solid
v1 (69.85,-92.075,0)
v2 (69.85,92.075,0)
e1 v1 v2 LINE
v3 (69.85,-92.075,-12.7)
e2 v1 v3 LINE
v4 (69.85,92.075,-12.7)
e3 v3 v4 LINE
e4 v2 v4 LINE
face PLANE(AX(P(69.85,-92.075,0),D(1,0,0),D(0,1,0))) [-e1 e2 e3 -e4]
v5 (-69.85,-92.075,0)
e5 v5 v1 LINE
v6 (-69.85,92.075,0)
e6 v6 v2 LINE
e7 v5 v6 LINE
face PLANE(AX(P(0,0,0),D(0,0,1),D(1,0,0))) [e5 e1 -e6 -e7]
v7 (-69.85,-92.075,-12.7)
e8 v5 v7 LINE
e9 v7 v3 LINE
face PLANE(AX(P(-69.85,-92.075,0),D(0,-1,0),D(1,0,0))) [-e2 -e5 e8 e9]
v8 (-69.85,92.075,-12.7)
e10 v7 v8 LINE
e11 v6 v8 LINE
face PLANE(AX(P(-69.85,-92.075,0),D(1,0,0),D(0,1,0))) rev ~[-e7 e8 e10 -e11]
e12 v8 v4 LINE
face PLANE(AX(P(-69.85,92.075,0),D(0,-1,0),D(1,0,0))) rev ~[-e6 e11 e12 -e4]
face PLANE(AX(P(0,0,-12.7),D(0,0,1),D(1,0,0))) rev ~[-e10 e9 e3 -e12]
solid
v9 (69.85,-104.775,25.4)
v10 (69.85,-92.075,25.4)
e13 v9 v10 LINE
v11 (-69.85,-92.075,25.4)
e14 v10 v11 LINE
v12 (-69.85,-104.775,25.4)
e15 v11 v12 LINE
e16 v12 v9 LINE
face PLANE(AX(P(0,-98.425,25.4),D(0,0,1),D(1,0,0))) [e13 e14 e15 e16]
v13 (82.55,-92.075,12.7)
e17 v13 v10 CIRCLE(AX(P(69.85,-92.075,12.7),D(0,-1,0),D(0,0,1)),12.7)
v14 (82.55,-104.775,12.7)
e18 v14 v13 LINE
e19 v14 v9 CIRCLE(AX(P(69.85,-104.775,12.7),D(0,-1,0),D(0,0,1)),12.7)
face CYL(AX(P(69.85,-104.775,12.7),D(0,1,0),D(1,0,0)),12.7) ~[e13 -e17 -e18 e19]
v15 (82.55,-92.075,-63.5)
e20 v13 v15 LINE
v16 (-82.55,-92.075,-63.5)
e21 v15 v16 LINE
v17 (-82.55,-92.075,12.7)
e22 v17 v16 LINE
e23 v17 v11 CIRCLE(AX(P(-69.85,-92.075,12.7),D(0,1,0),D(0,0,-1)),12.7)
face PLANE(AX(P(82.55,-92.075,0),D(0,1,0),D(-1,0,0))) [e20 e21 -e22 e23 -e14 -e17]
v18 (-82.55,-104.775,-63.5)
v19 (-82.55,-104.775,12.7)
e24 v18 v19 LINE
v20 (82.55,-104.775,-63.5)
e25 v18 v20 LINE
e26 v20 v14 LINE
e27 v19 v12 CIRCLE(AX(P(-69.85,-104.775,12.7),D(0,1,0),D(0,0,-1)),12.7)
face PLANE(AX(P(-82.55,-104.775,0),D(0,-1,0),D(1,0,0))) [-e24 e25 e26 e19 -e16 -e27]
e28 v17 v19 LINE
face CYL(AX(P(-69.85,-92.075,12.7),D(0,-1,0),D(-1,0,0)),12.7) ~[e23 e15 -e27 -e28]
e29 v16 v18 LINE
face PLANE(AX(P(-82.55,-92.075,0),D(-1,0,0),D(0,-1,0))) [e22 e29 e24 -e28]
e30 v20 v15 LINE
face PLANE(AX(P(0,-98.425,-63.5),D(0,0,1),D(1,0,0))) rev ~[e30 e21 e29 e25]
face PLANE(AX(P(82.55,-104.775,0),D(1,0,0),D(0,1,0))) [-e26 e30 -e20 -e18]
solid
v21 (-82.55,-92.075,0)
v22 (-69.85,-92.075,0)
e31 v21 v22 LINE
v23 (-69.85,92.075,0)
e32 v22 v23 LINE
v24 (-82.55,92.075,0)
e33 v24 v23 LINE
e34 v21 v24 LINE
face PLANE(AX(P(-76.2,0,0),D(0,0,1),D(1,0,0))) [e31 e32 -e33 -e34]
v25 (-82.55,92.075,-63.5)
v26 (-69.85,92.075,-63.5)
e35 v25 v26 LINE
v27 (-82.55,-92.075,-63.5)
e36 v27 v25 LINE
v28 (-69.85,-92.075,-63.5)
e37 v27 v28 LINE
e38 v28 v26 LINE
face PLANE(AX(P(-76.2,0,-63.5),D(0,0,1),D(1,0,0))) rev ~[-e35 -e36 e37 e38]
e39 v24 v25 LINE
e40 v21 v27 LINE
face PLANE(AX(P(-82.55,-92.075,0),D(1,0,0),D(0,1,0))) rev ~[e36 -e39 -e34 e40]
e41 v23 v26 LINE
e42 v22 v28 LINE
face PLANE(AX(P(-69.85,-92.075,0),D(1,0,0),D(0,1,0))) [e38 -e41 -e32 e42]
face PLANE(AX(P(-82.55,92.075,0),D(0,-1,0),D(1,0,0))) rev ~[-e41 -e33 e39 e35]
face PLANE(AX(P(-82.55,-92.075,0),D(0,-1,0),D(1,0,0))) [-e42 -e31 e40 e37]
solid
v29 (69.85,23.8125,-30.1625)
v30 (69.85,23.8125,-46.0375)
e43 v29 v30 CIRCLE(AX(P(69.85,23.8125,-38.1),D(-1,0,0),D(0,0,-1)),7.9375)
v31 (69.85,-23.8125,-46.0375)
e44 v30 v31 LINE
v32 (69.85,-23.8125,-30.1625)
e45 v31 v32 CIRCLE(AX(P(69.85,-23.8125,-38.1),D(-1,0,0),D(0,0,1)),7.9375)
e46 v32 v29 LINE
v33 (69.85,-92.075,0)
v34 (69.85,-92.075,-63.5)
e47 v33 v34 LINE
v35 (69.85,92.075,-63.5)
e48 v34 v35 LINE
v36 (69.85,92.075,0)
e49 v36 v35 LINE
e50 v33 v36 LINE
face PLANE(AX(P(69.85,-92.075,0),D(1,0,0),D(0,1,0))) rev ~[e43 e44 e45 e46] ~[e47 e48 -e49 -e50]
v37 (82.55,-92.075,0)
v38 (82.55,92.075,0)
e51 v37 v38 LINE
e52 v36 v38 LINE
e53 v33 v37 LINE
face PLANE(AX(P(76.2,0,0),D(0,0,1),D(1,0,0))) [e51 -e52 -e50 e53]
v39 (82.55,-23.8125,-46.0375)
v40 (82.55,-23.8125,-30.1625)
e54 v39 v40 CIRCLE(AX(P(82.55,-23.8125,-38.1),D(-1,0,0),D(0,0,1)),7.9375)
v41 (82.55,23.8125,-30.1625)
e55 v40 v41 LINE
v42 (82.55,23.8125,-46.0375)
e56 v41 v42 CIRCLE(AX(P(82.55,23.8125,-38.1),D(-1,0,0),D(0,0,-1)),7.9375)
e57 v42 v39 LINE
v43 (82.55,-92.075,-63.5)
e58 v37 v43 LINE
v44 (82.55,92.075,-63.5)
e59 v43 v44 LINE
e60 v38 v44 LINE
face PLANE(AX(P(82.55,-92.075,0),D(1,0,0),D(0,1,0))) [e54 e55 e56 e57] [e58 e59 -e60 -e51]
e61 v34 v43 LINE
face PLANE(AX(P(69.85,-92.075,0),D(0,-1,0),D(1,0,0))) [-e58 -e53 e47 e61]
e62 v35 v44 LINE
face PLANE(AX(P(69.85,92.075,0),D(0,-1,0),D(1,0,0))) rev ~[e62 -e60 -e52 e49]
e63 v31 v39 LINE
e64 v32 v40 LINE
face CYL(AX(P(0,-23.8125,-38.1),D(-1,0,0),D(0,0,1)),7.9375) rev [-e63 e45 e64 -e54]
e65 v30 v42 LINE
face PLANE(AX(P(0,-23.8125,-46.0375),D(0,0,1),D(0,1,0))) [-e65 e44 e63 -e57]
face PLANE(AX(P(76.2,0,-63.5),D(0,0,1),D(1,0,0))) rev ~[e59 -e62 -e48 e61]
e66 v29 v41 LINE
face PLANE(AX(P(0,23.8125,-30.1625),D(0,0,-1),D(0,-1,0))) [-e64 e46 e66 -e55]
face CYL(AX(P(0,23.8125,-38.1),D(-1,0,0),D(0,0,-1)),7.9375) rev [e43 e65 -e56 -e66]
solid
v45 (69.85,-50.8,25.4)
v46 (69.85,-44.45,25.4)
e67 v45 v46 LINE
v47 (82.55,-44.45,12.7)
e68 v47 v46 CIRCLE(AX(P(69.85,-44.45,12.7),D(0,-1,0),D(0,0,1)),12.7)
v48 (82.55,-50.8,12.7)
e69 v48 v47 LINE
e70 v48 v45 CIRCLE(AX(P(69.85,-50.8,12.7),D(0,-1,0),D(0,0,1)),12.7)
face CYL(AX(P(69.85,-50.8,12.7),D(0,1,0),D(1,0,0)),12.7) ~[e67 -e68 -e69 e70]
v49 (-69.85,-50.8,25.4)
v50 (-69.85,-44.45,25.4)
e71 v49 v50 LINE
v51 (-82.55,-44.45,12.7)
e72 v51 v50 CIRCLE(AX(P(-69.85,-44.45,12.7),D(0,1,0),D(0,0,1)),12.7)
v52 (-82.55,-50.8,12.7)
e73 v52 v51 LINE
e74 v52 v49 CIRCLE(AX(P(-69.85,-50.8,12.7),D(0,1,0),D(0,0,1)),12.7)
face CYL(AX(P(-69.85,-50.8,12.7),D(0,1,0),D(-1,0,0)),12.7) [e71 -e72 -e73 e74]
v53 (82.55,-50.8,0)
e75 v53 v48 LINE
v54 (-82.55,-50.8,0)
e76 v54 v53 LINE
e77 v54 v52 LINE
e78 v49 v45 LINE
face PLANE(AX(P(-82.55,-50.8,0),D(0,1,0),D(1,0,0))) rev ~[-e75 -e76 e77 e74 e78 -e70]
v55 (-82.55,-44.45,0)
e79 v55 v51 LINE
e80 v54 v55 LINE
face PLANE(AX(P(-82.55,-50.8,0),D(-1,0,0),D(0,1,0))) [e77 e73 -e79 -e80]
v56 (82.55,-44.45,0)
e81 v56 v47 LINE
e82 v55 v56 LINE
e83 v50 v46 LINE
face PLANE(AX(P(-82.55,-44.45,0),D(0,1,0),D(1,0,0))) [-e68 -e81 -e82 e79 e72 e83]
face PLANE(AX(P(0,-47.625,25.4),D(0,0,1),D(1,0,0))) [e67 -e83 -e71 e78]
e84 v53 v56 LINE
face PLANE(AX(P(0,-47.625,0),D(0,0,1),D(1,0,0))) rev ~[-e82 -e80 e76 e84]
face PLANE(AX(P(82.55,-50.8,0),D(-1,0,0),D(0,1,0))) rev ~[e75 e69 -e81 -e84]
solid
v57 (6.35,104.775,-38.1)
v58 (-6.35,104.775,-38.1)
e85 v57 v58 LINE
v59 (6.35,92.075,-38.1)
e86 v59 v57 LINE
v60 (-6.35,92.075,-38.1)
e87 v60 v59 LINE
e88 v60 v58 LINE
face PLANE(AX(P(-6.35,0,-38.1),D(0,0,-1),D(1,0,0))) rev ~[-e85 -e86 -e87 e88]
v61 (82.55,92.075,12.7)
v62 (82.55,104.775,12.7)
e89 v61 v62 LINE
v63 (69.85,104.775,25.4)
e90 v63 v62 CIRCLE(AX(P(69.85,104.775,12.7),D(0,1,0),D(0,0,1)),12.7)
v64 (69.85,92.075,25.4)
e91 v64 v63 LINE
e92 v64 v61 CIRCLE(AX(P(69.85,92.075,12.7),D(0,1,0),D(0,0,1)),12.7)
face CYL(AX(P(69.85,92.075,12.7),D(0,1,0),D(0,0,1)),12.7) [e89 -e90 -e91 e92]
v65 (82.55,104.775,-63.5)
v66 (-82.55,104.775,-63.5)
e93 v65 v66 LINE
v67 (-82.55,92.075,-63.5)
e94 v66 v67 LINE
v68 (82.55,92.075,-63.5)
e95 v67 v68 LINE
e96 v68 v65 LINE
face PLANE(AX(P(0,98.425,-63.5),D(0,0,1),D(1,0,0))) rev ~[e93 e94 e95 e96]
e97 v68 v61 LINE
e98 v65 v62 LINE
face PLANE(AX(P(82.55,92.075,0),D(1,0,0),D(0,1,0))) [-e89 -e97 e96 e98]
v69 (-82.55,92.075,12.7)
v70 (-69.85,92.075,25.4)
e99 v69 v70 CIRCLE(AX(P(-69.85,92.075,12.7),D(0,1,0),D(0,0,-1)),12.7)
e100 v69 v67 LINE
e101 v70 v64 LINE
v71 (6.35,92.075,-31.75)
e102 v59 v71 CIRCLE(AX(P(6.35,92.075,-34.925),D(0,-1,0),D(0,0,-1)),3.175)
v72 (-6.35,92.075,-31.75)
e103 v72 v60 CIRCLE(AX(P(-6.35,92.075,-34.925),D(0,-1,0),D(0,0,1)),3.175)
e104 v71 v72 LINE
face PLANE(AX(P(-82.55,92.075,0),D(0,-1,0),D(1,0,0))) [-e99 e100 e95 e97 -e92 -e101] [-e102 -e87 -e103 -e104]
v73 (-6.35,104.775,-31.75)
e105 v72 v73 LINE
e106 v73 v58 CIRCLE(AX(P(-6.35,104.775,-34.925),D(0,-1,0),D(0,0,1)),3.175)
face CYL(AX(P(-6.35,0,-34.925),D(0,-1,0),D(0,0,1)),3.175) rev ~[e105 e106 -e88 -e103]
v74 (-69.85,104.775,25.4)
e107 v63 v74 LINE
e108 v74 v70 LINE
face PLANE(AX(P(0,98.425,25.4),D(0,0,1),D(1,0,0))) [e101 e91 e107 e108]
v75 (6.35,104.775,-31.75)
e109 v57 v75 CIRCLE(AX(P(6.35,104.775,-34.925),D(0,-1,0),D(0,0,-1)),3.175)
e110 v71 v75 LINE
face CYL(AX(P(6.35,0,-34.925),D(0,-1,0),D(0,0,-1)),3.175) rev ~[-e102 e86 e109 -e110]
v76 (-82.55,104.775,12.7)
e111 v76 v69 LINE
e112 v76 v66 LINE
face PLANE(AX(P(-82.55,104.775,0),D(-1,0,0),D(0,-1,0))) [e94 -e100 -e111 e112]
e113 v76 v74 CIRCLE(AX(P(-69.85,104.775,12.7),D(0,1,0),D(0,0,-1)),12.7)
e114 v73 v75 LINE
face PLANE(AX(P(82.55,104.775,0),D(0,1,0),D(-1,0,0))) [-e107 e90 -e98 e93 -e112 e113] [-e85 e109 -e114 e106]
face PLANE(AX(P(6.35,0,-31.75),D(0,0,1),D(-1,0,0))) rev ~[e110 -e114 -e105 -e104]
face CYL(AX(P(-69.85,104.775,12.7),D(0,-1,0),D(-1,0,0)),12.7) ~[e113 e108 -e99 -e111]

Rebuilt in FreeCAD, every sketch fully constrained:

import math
import FreeCAD as App
import Part
import Sketcher
Q = App.Units.Quantity


def edges_at(feature, points):
    """Names of the edges that pass closest to the given points."""
    edges = feature.Shape.Edges
    near = lambda p: min(range(len(edges)), key=lambda i: edges[i].distToShape(Part.Vertex(*p))[0])
    return sorted({f"Edge{near(p) + 1}" for p in points})


def add_polygon(sketch, points):
    """Adds a closed chain of lines whose ends are joined by coincident constraints."""
    first, n = sketch.GeometryCount, len(points)
    for a, b in zip(points, points[1:] + points[:1]):
        sketch.addGeometry(Part.LineSegment(App.Vector(*a, 0), App.Vector(*b, 0)), False)
    for i in range(n):
        sketch.addConstraint(Sketcher.Constraint("Coincident", first + i, 2, first + (i + 1) % n, 1))

doc = App.newDocument("Part")
body = doc.addObject("PartDesign::Body", "Body")
body.AllowCompound = True

# Sketch on XY plane
sketch1 = doc.addObject("Sketcher::SketchObject", "Sketch")
body.addObject(sketch1)
sketch1.AttachmentSupport = (doc.XY_Plane, [""])
sketch1.MapMode = "FlatFace"
add_polygon(sketch1, [(70, 92), (70, -92), (83, -92), (83, 92)])  # lines 0-3
add_polygon(sketch1, [(-83, 92), (-83, -92), (-70, -92), (-70, 92)])  # lines 4-7
sketch1.addConstraint([
    Sketcher.Constraint("Vertical", 0),
    Sketcher.Constraint("Horizontal", 1),
    Sketcher.Constraint("Vertical", 2),
    Sketcher.Constraint("Horizontal", 3),
    Sketcher.Constraint("Vertical", 4),
    Sketcher.Constraint("Horizontal", 5),
    Sketcher.Constraint("Vertical", 6),
    Sketcher.Constraint("Horizontal", 7),
    Sketcher.Constraint("Symmetric", 2, 2, 4, 2, -1, 1),
    Sketcher.Constraint("Symmetric", 0, 2, 6, 2, -1, 1),
    Sketcher.Constraint("Horizontal", 1, 2, 4, 2),
    Sketcher.Constraint("DistanceX", 1, 1, 1, 2, Q("0.5 in")),
    Sketcher.Constraint("DistanceX", 4, 2, 0, 2, Q("6 in")),
    Sketcher.Constraint("DistanceY", 0, 2, 0, 1, Q("7.25 in")),
])
pad1 = doc.addObject("PartDesign::Pad", "Pad")
body.addObject(pad1)
pad1.Profile = sketch1
pad1.Length = Q("2.5 in")
pad1.Reversed = True

# Sketch on YZ plane
sketch2 = doc.addObject("Sketcher::SketchObject", "Sketch001")
body.addObject(sketch2)
sketch2.AttachmentSupport = (doc.YZ_Plane, [""])
sketch2.MapMode = "FlatFace"
sketch2.addGeometry([
    Part.ArcOfCircle(Part.Circle(App.Vector(-24, -38, 0), App.Vector(0, 0, 1), 8), math.radians(90), math.radians(270)),
    Part.LineSegment(App.Vector(-24, -46, 0), App.Vector(24, -46, 0)),
    Part.ArcOfCircle(Part.Circle(App.Vector(24, -38, 0), App.Vector(0, 0, 1), 8), math.radians(-90), math.radians(90)),
    Part.LineSegment(App.Vector(24, -30, 0), App.Vector(-24, -30, 0)),
], False)
sketch2.addConstraint([
    Sketcher.Constraint("Tangent", 0, 2, 1, 1),
    Sketcher.Constraint("Tangent", 1, 2, 2, 1),
    Sketcher.Constraint("Tangent", 2, 2, 3, 1),
    Sketcher.Constraint("Tangent", 3, 2, 0, 1),
    Sketcher.Constraint("Horizontal", 1),
    Sketcher.Constraint("Horizontal", 3),
    Sketcher.Constraint("Radius", 0, Q("0.3125 in")),
    Sketcher.Constraint("DistanceY", 0, 3, -1, 1, Q("1.5 in")),
    Sketcher.Constraint("DistanceX", 1, 1, 1, 2, Q("1.875 in")),
    Sketcher.Constraint("DistanceX", 0, 3, -1, 1, Q("0.9375 in")),
])
pocket1 = doc.addObject("PartDesign::Pocket", "Pocket")
body.addObject(pocket1)
pocket1.Profile = sketch2
pocket1.Type = "ThroughAll"
pocket1.Reversed = True
body2 = doc.addObject("PartDesign::Body", "Body001")
body2.AllowCompound = True

# Sketch on XY plane
sketch3 = doc.addObject("Sketcher::SketchObject", "Sketch002")
body2.addObject(sketch3)
sketch3.AttachmentSupport = (doc.getObject("XY_Plane001"), [""])
sketch3.MapMode = "FlatFace"
add_polygon(sketch3, [(-83, -92), (-83, -105), (83, -105), (83, -92)])  # lines 0-3
add_polygon(sketch3, [(-83, 92), (83, 92), (83, 105), (-83, 105)])  # lines 4-7
sketch3.addConstraint([
    Sketcher.Constraint("Vertical", 0),
    Sketcher.Constraint("Horizontal", 1),
    Sketcher.Constraint("Vertical", 2),
    Sketcher.Constraint("Horizontal", 3),
    Sketcher.Constraint("Horizontal", 4),
    Sketcher.Constraint("Vertical", 5),
    Sketcher.Constraint("Horizontal", 6),
    Sketcher.Constraint("Vertical", 7),
    Sketcher.Constraint("Symmetric", 3, 2, 4, 2, -1, 1),
    Sketcher.Constraint("Symmetric", 1, 2, 6, 2, -1, 1),
    Sketcher.Constraint("Vertical", 2, 2, 4, 2),
    Sketcher.Constraint("DistanceX", 1, 1, 1, 2, Q("6.5 in")),
    Sketcher.Constraint("DistanceY", 0, 2, 0, 1, Q("0.5 in")),
    Sketcher.Constraint("DistanceY", 2, 2, 4, 2, Q("7.25 in")),
])
pad2 = doc.addObject("PartDesign::Pad", "Pad001")
body2.addObject(pad2)
pad2.Profile = sketch3
pad2.Type = "TwoLengths"
pad2.Length = Q("1 in")
pad2.Length2 = Q("2.5 in")
doc.recompute()

fillet = doc.addObject("PartDesign::Fillet", "Fillet")
body2.addObject(fillet)
fillet.Base = (pad2, edges_at(pad2, [
    (-82.55, 98.425, 25.4),
    (82.55, 98.425, 25.4),
    (-82.55, -98.425, 25.4),
    (82.55, -98.425, 25.4),
]))
fillet.Radius = Q("0.5 in")

# Sketch on XZ plane
sketch4 = doc.addObject("Sketcher::SketchObject", "Sketch003")
body2.addObject(sketch4)
sketch4.AttachmentSupport = (doc.getObject("XZ_Plane001"), [""])
sketch4.MapMode = "FlatFace"
sketch4.addGeometry([
    Part.ArcOfCircle(Part.Circle(App.Vector(-6.3, -34.9, 0), App.Vector(0, 0, 1), 3.2), math.radians(90), math.radians(270)),
    Part.LineSegment(App.Vector(-6.3, -38.1, 0), App.Vector(6.3, -38.1, 0)),
    Part.ArcOfCircle(Part.Circle(App.Vector(6.3, -34.9, 0), App.Vector(0, 0, 1), 3.2), math.radians(-90), math.radians(90)),
    Part.LineSegment(App.Vector(6.3, -31.8, 0), App.Vector(-6.3, -31.8, 0)),
], False)
sketch4.addConstraint([
    Sketcher.Constraint("Tangent", 0, 2, 1, 1),
    Sketcher.Constraint("Tangent", 1, 2, 2, 1),
    Sketcher.Constraint("Tangent", 2, 2, 3, 1),
    Sketcher.Constraint("Tangent", 3, 2, 0, 1),
    Sketcher.Constraint("Horizontal", 1),
    Sketcher.Constraint("Horizontal", 3),
    Sketcher.Constraint("DistanceX", 1, 1, 1, 2, Q("0.5 in")),
    Sketcher.Constraint("Radius", 0, Q("0.125 in")),
    Sketcher.Constraint("DistanceY", 0, 2, -1, 1, Q("1.5 in")),
    Sketcher.Constraint("DistanceX", 0, 3, -1, 1, Q("0.25 in")),
])
pocket2 = doc.addObject("PartDesign::Pocket", "Pocket001")
body2.addObject(pocket2)
pocket2.Profile = sketch4
pocket2.Type = "ThroughAll"
body3 = doc.addObject("PartDesign::Body", "Body002")

# Sketch on XY plane
sketch5 = doc.addObject("Sketcher::SketchObject", "Sketch004")
body3.addObject(sketch5)
sketch5.AttachmentSupport = (doc.getObject("XY_Plane002"), [""])
sketch5.MapMode = "FlatFace"
add_polygon(sketch5, [(-70, 92), (-70, -92), (70, -92), (70, 92)])  # lines 0-3
sketch5.addConstraint([
    Sketcher.Constraint("Vertical", 0),
    Sketcher.Constraint("Horizontal", 1),
    Sketcher.Constraint("Vertical", 2),
    Sketcher.Constraint("Horizontal", 3),
    Sketcher.Constraint("Symmetric", 0, 2, 2, 2, -1, 1),
    Sketcher.Constraint("DistanceX", 1, 1, 1, 2, Q("5.5 in")),
    Sketcher.Constraint("DistanceY", 0, 2, 0, 1, Q("7.25 in")),
])
pad3 = doc.addObject("PartDesign::Pad", "Pad002")
body3.addObject(pad3)
pad3.Profile = sketch5
pad3.Length = Q("0.5 in")
pad3.Reversed = True
body4 = doc.addObject("PartDesign::Body", "Body003")

# Sketch on XY plane
sketch6 = doc.addObject("Sketcher::SketchObject", "Sketch005")
body4.addObject(sketch6)
sketch6.AttachmentSupport = (doc.getObject("XY_Plane003"), [""])
sketch6.MapMode = "FlatFace"
add_polygon(sketch6, [(-83, -44), (-83, -51), (83, -51), (83, -44)])  # lines 0-3
sketch6.addConstraint([
    Sketcher.Constraint("Vertical", 0),
    Sketcher.Constraint("Horizontal", 1),
    Sketcher.Constraint("Vertical", 2),
    Sketcher.Constraint("Horizontal", 3),
    Sketcher.Constraint("DistanceX", 1, 1, 1, 2, Q("6.5 in")),
    Sketcher.Constraint("DistanceY", 0, 2, -1, 1, Q("2 in")),
    Sketcher.Constraint("DistanceY", 0, 2, 0, 1, Q("0.25 in")),
    Sketcher.Constraint("DistanceX", 0, 2, -1, 1, Q("3.25 in")),
])
pad4 = doc.addObject("PartDesign::Pad", "Pad003")
body4.addObject(pad4)
pad4.Profile = sketch6
pad4.Length = Q("1 in")
doc.recompute()

fillet2 = doc.addObject("PartDesign::Fillet", "Fillet001")
body4.addObject(fillet2)
fillet2.Base = (pad4, edges_at(pad4, [(82.55, -47.625, 25.4), (-82.55, -47.625, 25.4)]))
fillet2.Radius = Q("0.5 in")

doc.recompute()
